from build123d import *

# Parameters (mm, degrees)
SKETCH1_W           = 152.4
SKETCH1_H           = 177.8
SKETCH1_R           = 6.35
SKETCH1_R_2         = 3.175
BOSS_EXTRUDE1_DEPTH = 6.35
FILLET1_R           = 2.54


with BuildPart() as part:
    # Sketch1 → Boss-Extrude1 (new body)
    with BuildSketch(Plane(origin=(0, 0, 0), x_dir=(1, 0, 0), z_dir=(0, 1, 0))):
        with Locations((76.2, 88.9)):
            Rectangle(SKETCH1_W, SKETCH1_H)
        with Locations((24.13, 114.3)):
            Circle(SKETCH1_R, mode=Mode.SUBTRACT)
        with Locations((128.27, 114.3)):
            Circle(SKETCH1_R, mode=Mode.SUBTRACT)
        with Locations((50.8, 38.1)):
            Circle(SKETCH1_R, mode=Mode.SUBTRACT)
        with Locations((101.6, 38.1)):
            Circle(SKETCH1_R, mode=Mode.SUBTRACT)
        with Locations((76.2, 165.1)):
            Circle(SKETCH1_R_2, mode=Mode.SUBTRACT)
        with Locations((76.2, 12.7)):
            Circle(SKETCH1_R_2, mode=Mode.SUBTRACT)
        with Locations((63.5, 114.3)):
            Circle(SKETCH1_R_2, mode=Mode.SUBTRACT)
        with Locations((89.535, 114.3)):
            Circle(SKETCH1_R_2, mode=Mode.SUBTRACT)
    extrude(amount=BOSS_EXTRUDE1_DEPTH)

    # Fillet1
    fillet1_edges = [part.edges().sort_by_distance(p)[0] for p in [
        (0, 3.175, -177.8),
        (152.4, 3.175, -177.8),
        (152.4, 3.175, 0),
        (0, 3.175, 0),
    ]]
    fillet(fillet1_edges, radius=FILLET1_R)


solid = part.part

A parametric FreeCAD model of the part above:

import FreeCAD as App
import Part
import Sketcher
Q = App.Units.Quantity


def edges_at(feature, points):
    """Names of the edges that pass closest to the given points."""
    edges = feature.Shape.Edges
    near = lambda p: min(range(len(edges)), key=lambda i: edges[i].distToShape(Part.Vertex(*p))[0])
    return sorted({f"Edge{near(p) + 1}" for p in points})


def add_polygon(sketch, points):
    """Adds a closed chain of lines whose ends are joined by coincident constraints."""
    first, n = sketch.GeometryCount, len(points)
    for a, b in zip(points, points[1:] + points[:1]):
        sketch.addGeometry(Part.LineSegment(App.Vector(*a, 0), App.Vector(*b, 0)), False)
    for i in range(n):
        sketch.addConstraint(Sketcher.Constraint("Coincident", first + i, 2, first + (i + 1) % n, 1))

doc = App.newDocument("Part")
params = doc.addObject("Spreadsheet::Sheet", "Params")
for row, (alias, value) in enumerate([
    ("sketch1_diameter", "0.5 in"),
    ("sketch1_diameter2", "0.25 in"),
    ("sketch1_width", "6 in"),
    ("sketch1_height", "7 in"),
    ("pad1_length", "0.25 in"),
    ("fillet_radius", "0.1 in"),
], start=1):
    params.set(f"A{row}", alias)
    params.set(f"B{row}", "=" + value)
    params.setAlias(f"B{row}", alias)

body = doc.addObject("PartDesign::Body", "Body")

sketch1 = body.newObject("Sketcher::SketchObject", "Sketch")
sketch1.AttachmentSupport = (doc.getObject("XZ_Plane"), [""])
sketch1.MapMode = "FlatFace"
add_polygon(sketch1, [(0, -177.8), (0, 0), (152.4, 0), (152.4, -177.8)])
sketch1.addGeometry(Part.Circle(App.Vector(50.8, -38.1, 0), App.Vector(0, 0, 1), 6.3), False)
sketch1.addGeometry(Part.Circle(App.Vector(76.2, -12.7, 0), App.Vector(0, 0, 1), 3.2), False)
sketch1.addGeometry(Part.Circle(App.Vector(101.6, -38.1, 0), App.Vector(0, 0, 1), 6.3), False)
sketch1.addGeometry(Part.Circle(App.Vector(24.1, -114.3, 0), App.Vector(0, 0, 1), 6.3), False)
sketch1.addGeometry(Part.Circle(App.Vector(63.5, -114.3, 0), App.Vector(0, 0, 1), 3.2), False)
sketch1.addGeometry(Part.Circle(App.Vector(89.5, -114.3, 0), App.Vector(0, 0, 1), 3.2), False)
sketch1.addGeometry(Part.Circle(App.Vector(128.3, -114.3, 0), App.Vector(0, 0, 1), 6.3), False)
sketch1.addGeometry(Part.Circle(App.Vector(76.2, -165.1, 0), App.Vector(0, 0, 1), 3.2), False)
sketch1.addConstraint(Sketcher.Constraint("Vertical", 0))
sketch1.addConstraint(Sketcher.Constraint("Horizontal", 1))
sketch1.addConstraint(Sketcher.Constraint("Vertical", 2))
sketch1.addConstraint(Sketcher.Constraint("Horizontal", 3))
sketch1.addConstraint(Sketcher.Constraint("Coincident", 0, 2, -1, 1))
sketch1.addConstraint(Sketcher.Constraint("Equal", 4, 6))
sketch1.addConstraint(Sketcher.Constraint("Equal", 6, 7))
sketch1.addConstraint(Sketcher.Constraint("Equal", 5, 8))
sketch1.addConstraint(Sketcher.Constraint("Equal", 8, 9))
sketch1.addConstraint(Sketcher.Constraint("Equal", 7, 10))
sketch1.addConstraint(Sketcher.Constraint("Equal", 9, 11))
sketch1.addConstraint(Sketcher.Constraint("Horizontal", 4, 3, 6, 3))
sketch1.addConstraint(Sketcher.Constraint("Horizontal", 7, 3, 8, 3))
sketch1.addConstraint(Sketcher.Constraint("Horizontal", 8, 3, 9, 3))
sketch1.addConstraint(Sketcher.Constraint("Horizontal", 9, 3, 10, 3))
sketch1.addConstraint(Sketcher.Constraint("Vertical", 5, 3, 11, 3))
sketch1.addConstraint(Sketcher.Constraint("Diameter", 4, Q("0.5 in")))
sketch1.addConstraint(Sketcher.Constraint("Diameter", 5, Q("0.25 in")))
sketch1.addConstraint(Sketcher.Constraint("DistanceX", 1, 1, 1, 2, Q("6 in")))
sketch1.addConstraint(Sketcher.Constraint("DistanceY", 0, 1, 0, 2, Q("7 in")))
sketch1.addConstraint(Sketcher.Constraint("DistanceX", -1, 1, 4, 3, Q("2 in")))
sketch1.addConstraint(Sketcher.Constraint("DistanceX", -1, 1, 5, 3, Q("3 in")))
sketch1.addConstraint(Sketcher.Constraint("DistanceX", -1, 1, 6, 3, Q("4 in")))
sketch1.addConstraint(Sketcher.Constraint("DistanceY", 4, 3, 5, 3, Q("1 in")))
sketch1.addConstraint(Sketcher.Constraint("DistanceY", 7, 3, 4, 3, Q("3 in")))
sketch1.addConstraint(Sketcher.Constraint("DistanceY", 11, 3, 8, 3, Q("2 in")))
sketch1.addConstraint(Sketcher.Constraint("DistanceY", 4, 3, -1, 1, Q("1.5 in")))
sketch1.addConstraint(Sketcher.Constraint("DistanceX", -1, 1, 8, 3, Q("2.5 in")))
sketch1.addConstraint(Sketcher.Constraint("DistanceX", 7, 3, 10, 3, Q("4.1 in")))
sketch1.addConstraint(Sketcher.Constraint("DistanceX", -1, 1, 7, 3, Q("0.95 in")))
sketch1.addConstraint(Sketcher.Constraint("DistanceX", -1, 1, 9, 3, Q("3.525 in")))
sketch1.setExpression("Constraints[20]", "Params.sketch1_diameter")
sketch1.setExpression("Constraints[21]", "Params.sketch1_diameter2")
sketch1.setExpression("Constraints[22]", "Params.sketch1_width")
sketch1.setExpression("Constraints[23]", "Params.sketch1_height")
pad1 = body.newObject("PartDesign::Pad", "Pad")
pad1.Profile = sketch1
pad1.setExpression("Length", "Params.pad1_length")
pad1.Reversed = True
doc.recompute()

fillet = body.newObject("PartDesign::Fillet", "Fillet")
fillet.Base = (pad1, edges_at(pad1, [
    (0, 3.175, -177.8),
    (152.4, 3.175, -177.8),
    (152.4, 3.175, 0),
    (0, 3.175, 0),
]))
fillet.setExpression("Radius", "Params.fillet_radius")

doc.recompute()
